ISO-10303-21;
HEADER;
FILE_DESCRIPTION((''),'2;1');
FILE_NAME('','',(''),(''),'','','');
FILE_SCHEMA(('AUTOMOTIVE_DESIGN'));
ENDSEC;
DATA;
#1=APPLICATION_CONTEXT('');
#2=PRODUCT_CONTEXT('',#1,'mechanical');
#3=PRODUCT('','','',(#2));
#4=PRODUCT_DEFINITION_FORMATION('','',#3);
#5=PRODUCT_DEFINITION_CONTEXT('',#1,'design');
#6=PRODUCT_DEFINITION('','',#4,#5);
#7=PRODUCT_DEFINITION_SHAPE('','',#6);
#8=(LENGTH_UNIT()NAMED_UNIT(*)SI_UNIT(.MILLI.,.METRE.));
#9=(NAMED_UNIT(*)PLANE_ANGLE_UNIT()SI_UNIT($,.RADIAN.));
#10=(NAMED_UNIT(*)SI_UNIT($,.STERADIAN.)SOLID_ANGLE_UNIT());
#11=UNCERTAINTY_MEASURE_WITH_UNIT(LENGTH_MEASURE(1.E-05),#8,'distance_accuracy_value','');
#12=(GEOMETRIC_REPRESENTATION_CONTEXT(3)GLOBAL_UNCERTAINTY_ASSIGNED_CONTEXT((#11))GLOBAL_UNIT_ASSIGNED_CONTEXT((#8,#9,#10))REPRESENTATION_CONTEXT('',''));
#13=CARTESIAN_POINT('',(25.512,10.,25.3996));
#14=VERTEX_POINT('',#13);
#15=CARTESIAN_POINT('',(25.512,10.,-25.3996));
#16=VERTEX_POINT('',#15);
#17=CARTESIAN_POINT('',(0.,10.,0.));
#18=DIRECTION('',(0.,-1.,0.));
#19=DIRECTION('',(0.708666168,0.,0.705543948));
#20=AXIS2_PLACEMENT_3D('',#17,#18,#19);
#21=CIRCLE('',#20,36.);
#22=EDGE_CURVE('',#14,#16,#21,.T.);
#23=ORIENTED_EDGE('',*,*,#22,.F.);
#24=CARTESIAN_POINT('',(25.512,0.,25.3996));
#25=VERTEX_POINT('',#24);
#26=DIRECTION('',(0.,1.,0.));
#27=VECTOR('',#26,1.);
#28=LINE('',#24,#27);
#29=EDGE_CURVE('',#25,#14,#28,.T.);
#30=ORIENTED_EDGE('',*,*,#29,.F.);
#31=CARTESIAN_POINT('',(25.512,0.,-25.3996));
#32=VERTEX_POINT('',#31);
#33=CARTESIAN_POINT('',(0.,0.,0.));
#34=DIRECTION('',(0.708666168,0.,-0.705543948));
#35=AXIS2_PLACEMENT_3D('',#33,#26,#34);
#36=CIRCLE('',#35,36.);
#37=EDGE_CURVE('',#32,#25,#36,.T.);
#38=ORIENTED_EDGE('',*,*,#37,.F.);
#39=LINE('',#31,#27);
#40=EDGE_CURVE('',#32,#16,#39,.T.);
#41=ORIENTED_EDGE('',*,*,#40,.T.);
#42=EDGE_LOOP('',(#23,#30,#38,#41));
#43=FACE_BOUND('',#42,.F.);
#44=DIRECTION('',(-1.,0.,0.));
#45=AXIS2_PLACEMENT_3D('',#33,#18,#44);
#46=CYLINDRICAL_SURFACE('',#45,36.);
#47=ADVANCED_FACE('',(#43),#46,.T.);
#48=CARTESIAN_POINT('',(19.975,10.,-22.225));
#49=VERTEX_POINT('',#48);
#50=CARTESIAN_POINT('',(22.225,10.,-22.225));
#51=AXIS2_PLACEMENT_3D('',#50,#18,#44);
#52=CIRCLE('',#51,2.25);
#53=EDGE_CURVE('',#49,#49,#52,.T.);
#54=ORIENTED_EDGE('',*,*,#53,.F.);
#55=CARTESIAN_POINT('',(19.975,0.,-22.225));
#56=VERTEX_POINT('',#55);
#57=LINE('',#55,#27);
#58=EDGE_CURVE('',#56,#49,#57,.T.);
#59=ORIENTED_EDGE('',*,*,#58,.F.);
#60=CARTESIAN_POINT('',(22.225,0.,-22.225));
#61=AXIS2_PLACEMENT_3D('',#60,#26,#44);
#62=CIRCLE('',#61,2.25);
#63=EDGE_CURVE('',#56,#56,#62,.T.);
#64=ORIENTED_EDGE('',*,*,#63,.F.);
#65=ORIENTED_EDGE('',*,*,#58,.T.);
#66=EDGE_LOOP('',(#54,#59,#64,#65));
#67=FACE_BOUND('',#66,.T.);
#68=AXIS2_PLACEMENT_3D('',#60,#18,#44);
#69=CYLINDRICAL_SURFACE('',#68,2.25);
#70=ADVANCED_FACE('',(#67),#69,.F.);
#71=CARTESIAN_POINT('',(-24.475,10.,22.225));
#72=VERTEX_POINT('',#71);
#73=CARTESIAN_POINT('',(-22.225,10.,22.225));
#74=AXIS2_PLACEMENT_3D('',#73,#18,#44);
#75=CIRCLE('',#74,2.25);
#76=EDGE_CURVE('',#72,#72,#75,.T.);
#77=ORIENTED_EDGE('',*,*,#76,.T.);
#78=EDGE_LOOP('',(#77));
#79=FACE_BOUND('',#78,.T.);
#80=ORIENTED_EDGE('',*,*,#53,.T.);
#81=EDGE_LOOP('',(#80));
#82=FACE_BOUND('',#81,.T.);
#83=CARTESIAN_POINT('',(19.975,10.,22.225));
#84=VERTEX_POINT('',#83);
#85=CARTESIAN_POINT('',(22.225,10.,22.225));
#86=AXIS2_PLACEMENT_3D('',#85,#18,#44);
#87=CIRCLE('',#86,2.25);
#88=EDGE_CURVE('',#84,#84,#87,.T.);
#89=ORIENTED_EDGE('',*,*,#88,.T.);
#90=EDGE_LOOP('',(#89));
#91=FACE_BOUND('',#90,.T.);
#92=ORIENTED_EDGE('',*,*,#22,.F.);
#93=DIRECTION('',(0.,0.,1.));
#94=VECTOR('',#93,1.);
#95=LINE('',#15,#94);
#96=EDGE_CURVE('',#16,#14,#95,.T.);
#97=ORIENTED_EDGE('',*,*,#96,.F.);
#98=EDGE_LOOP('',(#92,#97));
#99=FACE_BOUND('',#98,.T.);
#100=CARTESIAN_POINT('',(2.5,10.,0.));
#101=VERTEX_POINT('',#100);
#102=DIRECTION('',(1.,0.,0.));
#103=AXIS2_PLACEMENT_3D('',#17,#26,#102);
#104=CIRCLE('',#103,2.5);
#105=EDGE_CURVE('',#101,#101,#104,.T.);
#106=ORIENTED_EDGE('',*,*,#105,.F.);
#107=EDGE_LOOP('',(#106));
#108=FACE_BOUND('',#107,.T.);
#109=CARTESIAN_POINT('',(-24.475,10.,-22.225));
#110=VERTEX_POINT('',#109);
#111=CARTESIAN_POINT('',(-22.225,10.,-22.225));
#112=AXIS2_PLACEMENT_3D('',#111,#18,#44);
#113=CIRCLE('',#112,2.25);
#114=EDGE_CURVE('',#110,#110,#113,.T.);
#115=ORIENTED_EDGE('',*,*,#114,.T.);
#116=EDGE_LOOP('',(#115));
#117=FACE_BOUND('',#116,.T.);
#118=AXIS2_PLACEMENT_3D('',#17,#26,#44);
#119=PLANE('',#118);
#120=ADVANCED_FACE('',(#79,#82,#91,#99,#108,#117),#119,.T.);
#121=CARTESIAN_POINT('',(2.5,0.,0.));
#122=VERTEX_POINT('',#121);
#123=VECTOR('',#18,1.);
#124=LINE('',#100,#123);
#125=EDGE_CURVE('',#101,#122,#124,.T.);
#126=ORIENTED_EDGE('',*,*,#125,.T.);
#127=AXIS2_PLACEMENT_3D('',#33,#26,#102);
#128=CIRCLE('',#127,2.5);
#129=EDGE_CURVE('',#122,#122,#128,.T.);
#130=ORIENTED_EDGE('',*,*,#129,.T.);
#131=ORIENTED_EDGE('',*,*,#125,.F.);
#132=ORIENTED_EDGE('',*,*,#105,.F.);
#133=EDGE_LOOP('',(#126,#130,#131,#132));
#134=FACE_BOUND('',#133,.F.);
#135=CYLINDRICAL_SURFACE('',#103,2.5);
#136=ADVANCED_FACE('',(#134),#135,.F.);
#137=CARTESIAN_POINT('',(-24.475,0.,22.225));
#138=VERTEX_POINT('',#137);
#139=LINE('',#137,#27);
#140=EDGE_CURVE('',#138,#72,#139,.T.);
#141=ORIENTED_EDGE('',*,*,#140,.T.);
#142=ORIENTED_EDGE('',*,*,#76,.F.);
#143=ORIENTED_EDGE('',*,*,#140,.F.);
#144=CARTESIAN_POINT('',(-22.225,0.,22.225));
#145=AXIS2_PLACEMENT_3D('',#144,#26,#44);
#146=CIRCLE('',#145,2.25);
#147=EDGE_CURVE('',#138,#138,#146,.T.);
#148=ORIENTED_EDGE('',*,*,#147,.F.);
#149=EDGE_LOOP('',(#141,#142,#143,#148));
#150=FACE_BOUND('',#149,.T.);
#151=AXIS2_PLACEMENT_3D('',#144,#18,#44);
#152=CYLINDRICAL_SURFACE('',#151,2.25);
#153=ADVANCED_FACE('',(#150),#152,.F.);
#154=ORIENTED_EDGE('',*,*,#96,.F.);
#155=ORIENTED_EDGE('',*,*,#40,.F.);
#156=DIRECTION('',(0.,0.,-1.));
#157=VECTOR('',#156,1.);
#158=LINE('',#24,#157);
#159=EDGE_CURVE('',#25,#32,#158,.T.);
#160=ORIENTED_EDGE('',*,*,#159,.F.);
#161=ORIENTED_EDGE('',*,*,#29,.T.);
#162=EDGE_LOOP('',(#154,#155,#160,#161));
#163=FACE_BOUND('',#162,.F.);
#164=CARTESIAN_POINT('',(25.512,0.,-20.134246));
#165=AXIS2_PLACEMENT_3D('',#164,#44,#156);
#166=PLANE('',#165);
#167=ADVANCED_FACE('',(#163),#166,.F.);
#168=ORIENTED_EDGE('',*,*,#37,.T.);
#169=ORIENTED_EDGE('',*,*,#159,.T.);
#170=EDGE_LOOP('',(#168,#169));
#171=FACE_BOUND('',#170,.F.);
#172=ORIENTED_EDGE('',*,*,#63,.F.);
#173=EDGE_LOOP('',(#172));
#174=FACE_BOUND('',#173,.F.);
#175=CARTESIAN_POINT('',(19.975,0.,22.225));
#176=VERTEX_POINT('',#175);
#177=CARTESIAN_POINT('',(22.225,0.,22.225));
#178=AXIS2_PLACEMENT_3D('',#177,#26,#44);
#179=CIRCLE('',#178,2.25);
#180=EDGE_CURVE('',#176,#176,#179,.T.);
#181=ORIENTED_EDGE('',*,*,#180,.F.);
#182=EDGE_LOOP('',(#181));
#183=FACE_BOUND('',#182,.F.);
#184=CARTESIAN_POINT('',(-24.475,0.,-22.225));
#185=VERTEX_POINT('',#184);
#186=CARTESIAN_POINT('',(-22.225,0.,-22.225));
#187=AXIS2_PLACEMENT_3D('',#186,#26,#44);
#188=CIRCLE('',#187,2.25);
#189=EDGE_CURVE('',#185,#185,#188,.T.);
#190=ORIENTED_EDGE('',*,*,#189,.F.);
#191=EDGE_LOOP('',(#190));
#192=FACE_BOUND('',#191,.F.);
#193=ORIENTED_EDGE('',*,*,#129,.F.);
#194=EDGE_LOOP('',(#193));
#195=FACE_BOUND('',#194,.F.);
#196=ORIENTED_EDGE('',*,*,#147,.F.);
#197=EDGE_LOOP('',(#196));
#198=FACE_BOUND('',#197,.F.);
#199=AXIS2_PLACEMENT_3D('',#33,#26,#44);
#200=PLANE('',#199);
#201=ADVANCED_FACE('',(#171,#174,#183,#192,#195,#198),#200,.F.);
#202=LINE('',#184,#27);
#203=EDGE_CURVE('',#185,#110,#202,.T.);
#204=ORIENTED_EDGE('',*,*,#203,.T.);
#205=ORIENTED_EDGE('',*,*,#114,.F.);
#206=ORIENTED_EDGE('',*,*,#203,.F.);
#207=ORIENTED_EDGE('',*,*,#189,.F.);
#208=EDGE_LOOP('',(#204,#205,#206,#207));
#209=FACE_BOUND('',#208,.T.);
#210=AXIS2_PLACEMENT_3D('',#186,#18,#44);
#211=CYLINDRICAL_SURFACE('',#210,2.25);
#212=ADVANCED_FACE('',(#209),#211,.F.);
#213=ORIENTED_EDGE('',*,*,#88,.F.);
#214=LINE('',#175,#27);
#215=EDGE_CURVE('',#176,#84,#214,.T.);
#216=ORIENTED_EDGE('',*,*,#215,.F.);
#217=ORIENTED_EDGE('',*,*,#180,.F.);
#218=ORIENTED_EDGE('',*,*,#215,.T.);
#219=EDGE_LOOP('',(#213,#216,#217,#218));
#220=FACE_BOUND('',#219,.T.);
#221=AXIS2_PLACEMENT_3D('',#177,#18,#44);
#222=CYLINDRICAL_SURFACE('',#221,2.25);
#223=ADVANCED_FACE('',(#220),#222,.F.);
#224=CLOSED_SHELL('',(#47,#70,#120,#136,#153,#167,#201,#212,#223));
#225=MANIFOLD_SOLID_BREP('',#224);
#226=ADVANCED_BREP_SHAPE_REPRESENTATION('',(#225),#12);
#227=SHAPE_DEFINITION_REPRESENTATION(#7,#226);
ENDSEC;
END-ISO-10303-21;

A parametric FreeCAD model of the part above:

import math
import FreeCAD as App
import Part
import Sketcher

V = App.Vector

doc = App.newDocument("Part")
body = doc.addObject("PartDesign::Body", "Body")

# Sketch on XZ plane
sketch1 = doc.addObject("Sketcher::SketchObject", "Sketch")
body.addObject(sketch1)
sketch1.AttachmentSupport = (doc.XZ_Plane, [""])
sketch1.MapMode = "FlatFace"
sketch1.addGeometry(Part.ArcOfCircle(Part.Circle(V(0, 0, 0), V(0, 0, 1), 36), math.radians(45), math.radians(315)), False)
sketch1.addGeometry(Part.LineSegment(V(25.5, -25.4, 0), V(25.5, 25.4, 0)), False)
sketch1.addGeometry(Part.Circle(V(22.2, -22.2, 0), V(0, 0, 1), 2.2), False)
sketch1.addGeometry(Part.Circle(V(-22.2, -22.2, 0), V(0, 0, 1), 2.2), False)
sketch1.addGeometry(Part.Circle(V(-22.2, 22.2, 0), V(0, 0, 1), 2.2), False)
sketch1.addGeometry(Part.Circle(V(22.2, 22.2, 0), V(0, 0, 1), 2.2), False)
sketch1.addConstraint(Sketcher.Constraint("Coincident", 0, 1, 1, 2))
sketch1.addConstraint(Sketcher.Constraint("Coincident", 1, 1, 0, 2))
sketch1.addConstraint(Sketcher.Constraint("Vertical", 1))
sketch1.addConstraint(Sketcher.Constraint("Coincident", 0, 3, -1, 1))
sketch1.addConstraint(Sketcher.Constraint("Equal", 2, 3))
sketch1.addConstraint(Sketcher.Constraint("Equal", 3, 4))
sketch1.addConstraint(Sketcher.Constraint("Equal", 4, 5))
sketch1.addConstraint(Sketcher.Constraint("Symmetric", 2, 3, 4, 3, -1, 1))
sketch1.addConstraint(Sketcher.Constraint("Symmetric", 3, 3, 5, 3, -1, 1))
sketch1.addConstraint(Sketcher.Constraint("Symmetric", 2, 3, 3, 3, -2))
sketch1.addConstraint(Sketcher.Constraint("Radius", 0, 36.0))
sketch1.addConstraint(Sketcher.Constraint("Diameter", 2, 4.5))
sketch1.addConstraint(Sketcher.Constraint("DistanceX", 3, 3, 2, 3, 44.45))
sketch1.addConstraint(Sketcher.Constraint("DistanceY", 3, 3, 4, 3, 44.45))
sketch1.addConstraint(Sketcher.Constraint("DistanceX", -1, 1, 0, 1, 25.512))
pad1 = doc.addObject("PartDesign::Pad", "Pad")
body.addObject(pad1)
pad1.Profile = sketch1
pad1.Length = 10
pad1.Reversed = True

# Sketch on XZ plane
sketch2 = doc.addObject("Sketcher::SketchObject", "Sketch001")
body.addObject(sketch2)
sketch2.AttachmentSupport = (doc.XZ_Plane, [""])
sketch2.MapMode = "FlatFace"
sketch2.AttachmentOffset = App.Placement(V(0, 0, -10), App.Rotation())
sketch2.addGeometry(Part.Circle(V(0, 0, 0), V(0, 0, 1), 2.5), False)
sketch2.addConstraint(Sketcher.Constraint("Coincident", 0, 3, -1, 1))
sketch2.addConstraint(Sketcher.Constraint("Diameter", 0, 5.0))
pocket1 = doc.addObject("PartDesign::Pocket", "Pocket")
body.addObject(pocket1)
pocket1.Profile = sketch2
pocket1.Length = 10
pocket1.Reversed = True

doc.recompute()
